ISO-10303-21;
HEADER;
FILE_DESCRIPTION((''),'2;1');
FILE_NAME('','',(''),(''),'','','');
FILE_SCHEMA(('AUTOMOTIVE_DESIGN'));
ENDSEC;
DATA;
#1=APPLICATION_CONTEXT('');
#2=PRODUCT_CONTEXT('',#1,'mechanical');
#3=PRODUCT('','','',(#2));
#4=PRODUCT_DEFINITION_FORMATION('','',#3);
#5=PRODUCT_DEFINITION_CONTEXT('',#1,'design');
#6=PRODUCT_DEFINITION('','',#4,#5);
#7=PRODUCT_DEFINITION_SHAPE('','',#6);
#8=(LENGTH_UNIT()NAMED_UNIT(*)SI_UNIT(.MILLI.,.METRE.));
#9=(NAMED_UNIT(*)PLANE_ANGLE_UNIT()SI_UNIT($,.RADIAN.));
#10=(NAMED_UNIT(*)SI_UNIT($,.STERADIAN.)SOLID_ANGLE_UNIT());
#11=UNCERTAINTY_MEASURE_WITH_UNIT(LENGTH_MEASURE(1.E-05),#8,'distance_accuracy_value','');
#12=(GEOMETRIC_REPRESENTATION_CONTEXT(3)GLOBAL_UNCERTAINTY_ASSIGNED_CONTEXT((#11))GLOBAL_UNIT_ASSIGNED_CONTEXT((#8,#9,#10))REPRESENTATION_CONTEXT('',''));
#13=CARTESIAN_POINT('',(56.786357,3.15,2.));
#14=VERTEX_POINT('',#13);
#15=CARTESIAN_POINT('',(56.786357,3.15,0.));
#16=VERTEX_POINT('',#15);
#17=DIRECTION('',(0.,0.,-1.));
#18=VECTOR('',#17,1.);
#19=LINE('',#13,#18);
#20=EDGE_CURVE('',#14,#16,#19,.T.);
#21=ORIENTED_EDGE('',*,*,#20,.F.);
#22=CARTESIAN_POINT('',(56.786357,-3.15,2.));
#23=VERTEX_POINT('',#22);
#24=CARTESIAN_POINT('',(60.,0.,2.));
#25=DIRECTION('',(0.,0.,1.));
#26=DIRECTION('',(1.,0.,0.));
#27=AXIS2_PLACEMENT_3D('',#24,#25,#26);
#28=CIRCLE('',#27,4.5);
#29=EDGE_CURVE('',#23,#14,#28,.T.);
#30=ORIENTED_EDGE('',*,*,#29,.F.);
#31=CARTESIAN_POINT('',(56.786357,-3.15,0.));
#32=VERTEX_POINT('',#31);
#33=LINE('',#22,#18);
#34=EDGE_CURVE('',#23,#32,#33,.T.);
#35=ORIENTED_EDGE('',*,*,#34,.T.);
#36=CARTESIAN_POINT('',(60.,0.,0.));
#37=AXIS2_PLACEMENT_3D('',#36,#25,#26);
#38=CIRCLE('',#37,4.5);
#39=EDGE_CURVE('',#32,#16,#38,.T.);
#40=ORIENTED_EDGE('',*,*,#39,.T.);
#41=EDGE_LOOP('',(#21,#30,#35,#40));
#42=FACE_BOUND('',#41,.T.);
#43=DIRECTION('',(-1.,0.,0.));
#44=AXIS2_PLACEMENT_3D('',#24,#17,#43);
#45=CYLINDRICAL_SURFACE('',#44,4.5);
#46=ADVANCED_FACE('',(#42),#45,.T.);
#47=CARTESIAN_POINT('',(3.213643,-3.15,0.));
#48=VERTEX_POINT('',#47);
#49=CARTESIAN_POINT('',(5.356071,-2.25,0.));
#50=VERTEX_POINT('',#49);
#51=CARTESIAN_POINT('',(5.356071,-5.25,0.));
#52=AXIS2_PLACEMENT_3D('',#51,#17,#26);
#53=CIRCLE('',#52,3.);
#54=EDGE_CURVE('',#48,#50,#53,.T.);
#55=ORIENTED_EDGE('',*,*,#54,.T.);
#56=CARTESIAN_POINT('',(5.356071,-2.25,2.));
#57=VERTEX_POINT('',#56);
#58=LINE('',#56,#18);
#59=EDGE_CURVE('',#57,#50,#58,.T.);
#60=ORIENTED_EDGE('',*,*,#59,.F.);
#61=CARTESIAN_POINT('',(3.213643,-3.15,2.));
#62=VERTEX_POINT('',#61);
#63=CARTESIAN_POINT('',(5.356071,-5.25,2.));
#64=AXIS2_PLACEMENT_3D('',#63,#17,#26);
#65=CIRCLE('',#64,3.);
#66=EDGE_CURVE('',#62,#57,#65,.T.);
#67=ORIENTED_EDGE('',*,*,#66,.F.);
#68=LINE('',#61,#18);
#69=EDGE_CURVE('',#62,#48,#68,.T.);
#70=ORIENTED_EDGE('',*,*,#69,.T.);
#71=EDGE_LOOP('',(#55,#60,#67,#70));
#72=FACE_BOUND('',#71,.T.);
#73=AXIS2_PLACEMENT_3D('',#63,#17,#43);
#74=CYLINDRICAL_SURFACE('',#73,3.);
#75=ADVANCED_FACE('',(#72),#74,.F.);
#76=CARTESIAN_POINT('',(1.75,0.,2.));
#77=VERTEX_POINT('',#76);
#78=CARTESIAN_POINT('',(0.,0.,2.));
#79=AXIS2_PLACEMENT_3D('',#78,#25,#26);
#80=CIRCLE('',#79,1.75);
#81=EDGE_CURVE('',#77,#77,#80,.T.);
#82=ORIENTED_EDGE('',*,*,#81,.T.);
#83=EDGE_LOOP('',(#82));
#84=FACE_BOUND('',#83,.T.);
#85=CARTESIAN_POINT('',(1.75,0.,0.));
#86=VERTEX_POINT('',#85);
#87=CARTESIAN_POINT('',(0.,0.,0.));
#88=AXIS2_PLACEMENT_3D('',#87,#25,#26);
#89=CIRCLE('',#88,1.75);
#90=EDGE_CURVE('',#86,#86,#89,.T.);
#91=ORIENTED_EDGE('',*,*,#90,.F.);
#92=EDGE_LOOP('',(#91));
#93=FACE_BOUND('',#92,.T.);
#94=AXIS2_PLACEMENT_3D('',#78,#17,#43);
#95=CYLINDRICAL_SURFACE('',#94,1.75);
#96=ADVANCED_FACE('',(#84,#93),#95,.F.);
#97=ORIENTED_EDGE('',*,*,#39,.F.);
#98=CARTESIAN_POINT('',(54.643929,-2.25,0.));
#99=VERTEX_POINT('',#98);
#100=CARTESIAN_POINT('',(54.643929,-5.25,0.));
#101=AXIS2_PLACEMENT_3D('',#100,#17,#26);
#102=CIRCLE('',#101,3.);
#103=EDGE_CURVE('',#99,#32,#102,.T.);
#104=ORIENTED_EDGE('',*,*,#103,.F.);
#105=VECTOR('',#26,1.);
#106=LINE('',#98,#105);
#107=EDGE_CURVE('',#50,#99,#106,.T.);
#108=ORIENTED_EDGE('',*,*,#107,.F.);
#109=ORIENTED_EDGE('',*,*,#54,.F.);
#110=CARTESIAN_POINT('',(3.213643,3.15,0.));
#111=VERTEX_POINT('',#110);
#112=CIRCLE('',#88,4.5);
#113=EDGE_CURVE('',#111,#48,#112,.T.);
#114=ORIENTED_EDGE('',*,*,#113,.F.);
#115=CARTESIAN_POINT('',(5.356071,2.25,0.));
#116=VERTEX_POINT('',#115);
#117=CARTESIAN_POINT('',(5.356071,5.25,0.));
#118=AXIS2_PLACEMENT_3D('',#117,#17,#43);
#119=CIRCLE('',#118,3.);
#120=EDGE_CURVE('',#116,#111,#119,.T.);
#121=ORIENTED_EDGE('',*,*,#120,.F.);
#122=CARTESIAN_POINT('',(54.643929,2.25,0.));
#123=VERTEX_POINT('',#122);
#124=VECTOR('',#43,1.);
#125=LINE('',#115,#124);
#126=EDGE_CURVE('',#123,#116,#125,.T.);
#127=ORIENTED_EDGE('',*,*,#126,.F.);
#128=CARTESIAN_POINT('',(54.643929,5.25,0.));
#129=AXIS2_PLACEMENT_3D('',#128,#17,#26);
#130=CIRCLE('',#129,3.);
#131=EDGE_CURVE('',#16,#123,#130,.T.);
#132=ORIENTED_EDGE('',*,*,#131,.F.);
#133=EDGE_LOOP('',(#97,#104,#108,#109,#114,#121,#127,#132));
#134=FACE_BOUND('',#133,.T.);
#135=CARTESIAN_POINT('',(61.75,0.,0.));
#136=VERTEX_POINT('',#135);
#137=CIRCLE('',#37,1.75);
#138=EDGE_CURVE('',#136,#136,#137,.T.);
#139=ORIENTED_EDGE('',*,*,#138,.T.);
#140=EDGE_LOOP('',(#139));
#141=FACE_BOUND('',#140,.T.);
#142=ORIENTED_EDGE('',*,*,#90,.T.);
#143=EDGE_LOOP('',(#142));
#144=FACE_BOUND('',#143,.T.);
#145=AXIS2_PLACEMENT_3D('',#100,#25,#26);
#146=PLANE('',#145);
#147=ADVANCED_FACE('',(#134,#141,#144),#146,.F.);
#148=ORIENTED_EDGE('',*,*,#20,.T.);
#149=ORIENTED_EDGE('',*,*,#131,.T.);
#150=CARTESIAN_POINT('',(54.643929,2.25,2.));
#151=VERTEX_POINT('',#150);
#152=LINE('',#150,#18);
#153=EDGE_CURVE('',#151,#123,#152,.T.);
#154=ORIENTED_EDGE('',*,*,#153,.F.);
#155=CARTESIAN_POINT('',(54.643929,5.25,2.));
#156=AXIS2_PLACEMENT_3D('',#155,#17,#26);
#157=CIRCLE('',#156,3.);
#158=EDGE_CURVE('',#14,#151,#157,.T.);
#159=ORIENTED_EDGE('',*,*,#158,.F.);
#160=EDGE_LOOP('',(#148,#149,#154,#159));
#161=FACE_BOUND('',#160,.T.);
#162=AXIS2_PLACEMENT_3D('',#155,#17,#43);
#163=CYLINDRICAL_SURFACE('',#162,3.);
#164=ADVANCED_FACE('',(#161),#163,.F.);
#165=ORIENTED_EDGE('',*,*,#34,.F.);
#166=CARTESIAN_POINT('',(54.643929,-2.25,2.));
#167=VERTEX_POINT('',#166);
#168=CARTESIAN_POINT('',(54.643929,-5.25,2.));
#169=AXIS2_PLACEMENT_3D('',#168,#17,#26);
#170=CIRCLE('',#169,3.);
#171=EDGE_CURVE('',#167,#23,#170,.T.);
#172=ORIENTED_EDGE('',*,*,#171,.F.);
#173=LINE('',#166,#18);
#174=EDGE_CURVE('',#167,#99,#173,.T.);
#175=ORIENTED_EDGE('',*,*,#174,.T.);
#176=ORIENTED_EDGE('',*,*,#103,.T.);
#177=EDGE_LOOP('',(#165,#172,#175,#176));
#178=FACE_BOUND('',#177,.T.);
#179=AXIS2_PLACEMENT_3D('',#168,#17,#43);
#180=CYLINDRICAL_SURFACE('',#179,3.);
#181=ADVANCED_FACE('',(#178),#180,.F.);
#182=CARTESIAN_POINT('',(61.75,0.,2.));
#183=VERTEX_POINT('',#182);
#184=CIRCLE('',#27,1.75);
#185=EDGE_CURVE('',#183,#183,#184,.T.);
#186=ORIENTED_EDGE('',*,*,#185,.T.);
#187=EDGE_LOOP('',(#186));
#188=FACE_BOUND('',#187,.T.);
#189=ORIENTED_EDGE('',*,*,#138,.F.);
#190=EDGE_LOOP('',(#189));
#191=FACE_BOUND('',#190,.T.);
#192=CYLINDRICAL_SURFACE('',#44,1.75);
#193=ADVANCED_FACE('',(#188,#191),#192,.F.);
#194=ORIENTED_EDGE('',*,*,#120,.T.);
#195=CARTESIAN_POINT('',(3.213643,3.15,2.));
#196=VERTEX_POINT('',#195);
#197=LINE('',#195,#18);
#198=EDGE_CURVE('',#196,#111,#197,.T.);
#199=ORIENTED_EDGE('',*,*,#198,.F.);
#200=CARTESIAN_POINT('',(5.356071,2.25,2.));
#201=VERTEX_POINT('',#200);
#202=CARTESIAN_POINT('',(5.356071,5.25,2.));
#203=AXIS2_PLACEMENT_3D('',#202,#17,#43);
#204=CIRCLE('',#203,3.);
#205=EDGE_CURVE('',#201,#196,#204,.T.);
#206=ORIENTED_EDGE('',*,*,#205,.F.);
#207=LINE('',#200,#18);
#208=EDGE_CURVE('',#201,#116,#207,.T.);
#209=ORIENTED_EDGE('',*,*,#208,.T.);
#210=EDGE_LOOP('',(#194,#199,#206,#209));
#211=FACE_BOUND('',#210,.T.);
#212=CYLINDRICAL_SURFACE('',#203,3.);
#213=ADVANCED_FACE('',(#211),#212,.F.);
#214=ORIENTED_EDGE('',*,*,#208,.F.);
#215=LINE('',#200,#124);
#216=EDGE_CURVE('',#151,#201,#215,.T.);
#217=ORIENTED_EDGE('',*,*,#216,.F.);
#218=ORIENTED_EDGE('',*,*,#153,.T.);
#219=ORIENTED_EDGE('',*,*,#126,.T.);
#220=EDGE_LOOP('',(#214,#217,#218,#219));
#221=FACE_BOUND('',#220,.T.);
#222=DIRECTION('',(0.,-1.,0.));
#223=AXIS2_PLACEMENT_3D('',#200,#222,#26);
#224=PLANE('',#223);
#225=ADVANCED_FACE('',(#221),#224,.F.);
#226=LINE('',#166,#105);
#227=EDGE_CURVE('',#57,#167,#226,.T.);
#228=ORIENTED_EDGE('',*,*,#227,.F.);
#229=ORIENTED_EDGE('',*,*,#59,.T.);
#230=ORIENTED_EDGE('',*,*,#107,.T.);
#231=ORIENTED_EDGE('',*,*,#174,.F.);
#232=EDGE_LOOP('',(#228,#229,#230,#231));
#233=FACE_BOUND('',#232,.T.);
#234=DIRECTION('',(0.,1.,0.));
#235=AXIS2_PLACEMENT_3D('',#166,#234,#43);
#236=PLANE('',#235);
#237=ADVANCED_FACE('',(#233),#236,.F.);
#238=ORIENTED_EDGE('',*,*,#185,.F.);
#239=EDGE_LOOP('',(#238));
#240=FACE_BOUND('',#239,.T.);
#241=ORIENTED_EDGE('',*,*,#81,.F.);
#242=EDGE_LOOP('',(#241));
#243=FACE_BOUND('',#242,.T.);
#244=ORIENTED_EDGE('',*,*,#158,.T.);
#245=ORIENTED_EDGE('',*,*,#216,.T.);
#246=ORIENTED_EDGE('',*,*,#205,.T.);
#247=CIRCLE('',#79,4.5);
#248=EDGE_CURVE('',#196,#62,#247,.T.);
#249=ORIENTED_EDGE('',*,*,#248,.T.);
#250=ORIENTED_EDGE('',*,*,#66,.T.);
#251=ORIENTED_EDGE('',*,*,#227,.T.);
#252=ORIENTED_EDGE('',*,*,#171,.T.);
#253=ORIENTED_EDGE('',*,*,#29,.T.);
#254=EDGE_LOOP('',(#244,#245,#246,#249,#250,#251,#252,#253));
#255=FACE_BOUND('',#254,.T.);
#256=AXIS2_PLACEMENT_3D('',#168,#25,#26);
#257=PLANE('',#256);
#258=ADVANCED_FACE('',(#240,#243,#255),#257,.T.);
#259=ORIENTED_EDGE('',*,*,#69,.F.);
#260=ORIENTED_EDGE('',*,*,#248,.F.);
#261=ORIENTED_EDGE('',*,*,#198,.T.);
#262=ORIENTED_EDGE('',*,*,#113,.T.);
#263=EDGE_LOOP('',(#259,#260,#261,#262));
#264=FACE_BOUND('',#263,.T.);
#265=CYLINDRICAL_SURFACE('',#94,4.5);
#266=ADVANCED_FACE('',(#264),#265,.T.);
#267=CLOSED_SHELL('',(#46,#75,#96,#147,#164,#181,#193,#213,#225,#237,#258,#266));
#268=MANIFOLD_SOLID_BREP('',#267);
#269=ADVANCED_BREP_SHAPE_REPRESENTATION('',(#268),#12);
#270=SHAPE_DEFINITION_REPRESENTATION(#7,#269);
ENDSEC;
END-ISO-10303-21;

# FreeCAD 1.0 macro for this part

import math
import FreeCAD as App
import Part
import Sketcher

doc = App.newDocument("Part")
body = doc.addObject("PartDesign::Body", "Body")

sketch1 = doc.addObject("Sketcher::SketchObject", "Sketch")
body.addObject(sketch1)
sketch1.AttachmentSupport = (doc.XY_Plane, [""])
sketch1.MapMode = "FlatFace"
sketch1.addGeometry([
    Part.LineSegment(App.Vector(54.643929, 2.25, 0), App.Vector(5.356071, 2.25, 0)),
    Part.ArcOfCircle(Part.Circle(App.Vector(5.356071, 5.25, 0), App.Vector(0, 0, 1), 3), math.radians(-135.572996), math.radians(-90)),
    Part.ArcOfCircle(Part.Circle(App.Vector(0, 0, 0), App.Vector(0, 0, 1), 4.5), math.radians(44.427004), math.radians(315.572996)),
    Part.ArcOfCircle(Part.Circle(App.Vector(5.356071, -5.25, 0), App.Vector(0, 0, 1), 3), math.radians(90), math.radians(135.572996)),
    Part.LineSegment(App.Vector(5.356071, -2.25, 0), App.Vector(54.643929, -2.25, 0)),
    Part.ArcOfCircle(Part.Circle(App.Vector(54.643929, -5.25, 0), App.Vector(0, 0, 1), 3), math.radians(44.427004), math.radians(90)),
    Part.ArcOfCircle(Part.Circle(App.Vector(60, 0, 0), App.Vector(0, 0, 1), 4.5), math.radians(-135.572996), math.radians(135.572996)),
    Part.ArcOfCircle(Part.Circle(App.Vector(54.643929, 5.25, 0), App.Vector(0, 0, 1), 3), math.radians(-90), math.radians(-44.427004)),
    Part.Circle(App.Vector(60, 0, 0), App.Vector(0, 0, 1), 1.75),
    Part.Circle(App.Vector(0, 0, 0), App.Vector(0, 0, 1), 1.75),
], False)
sketch1.addConstraint([
    Sketcher.Constraint("Tangent", 0, 2, 1, 2),
    Sketcher.Constraint("Tangent", 1, 1, 2, 1),
    Sketcher.Constraint("Tangent", 2, 2, 3, 2),
    Sketcher.Constraint("Tangent", 3, 1, 4, 1),
    Sketcher.Constraint("Tangent", 4, 2, 5, 2),
    Sketcher.Constraint("Tangent", 5, 1, 6, 1),
    Sketcher.Constraint("Tangent", 6, 2, 7, 2),
    Sketcher.Constraint("Tangent", 7, 1, 0, 1),
    Sketcher.Constraint("Horizontal", 0),
    Sketcher.Constraint("Horizontal", 4),
    Sketcher.Constraint("Coincident", 2, 3, -1, 1),
    Sketcher.Constraint("Coincident", 9, 3, -1, 1),
    Sketcher.Constraint("Coincident", 8, 3, 6, 3),
    Sketcher.Constraint("Equal", 1, 3),
    Sketcher.Constraint("Equal", 3, 5),
    Sketcher.Constraint("Equal", 2, 6),
    Sketcher.Constraint("Equal", 5, 7),
    Sketcher.Constraint("Equal", 8, 9),
    Sketcher.Constraint("Symmetric", 5, 3, 7, 3, -1),
    Sketcher.Constraint("Radius", 1, 3.0),
    Sketcher.Constraint("Diameter", 8, 3.5),
    Sketcher.Constraint("Radius", 2, 4.5),
    Sketcher.Constraint("DistanceX", -1, 1, 6, 3, 60.0),
    Sketcher.Constraint("DistanceY", 3, 3, 1, 3, 10.5),
])
pad1 = doc.addObject("PartDesign::Pad", "Pad")
body.addObject(pad1)
pad1.Profile = sketch1
pad1.Length = 2

doc.recompute()
